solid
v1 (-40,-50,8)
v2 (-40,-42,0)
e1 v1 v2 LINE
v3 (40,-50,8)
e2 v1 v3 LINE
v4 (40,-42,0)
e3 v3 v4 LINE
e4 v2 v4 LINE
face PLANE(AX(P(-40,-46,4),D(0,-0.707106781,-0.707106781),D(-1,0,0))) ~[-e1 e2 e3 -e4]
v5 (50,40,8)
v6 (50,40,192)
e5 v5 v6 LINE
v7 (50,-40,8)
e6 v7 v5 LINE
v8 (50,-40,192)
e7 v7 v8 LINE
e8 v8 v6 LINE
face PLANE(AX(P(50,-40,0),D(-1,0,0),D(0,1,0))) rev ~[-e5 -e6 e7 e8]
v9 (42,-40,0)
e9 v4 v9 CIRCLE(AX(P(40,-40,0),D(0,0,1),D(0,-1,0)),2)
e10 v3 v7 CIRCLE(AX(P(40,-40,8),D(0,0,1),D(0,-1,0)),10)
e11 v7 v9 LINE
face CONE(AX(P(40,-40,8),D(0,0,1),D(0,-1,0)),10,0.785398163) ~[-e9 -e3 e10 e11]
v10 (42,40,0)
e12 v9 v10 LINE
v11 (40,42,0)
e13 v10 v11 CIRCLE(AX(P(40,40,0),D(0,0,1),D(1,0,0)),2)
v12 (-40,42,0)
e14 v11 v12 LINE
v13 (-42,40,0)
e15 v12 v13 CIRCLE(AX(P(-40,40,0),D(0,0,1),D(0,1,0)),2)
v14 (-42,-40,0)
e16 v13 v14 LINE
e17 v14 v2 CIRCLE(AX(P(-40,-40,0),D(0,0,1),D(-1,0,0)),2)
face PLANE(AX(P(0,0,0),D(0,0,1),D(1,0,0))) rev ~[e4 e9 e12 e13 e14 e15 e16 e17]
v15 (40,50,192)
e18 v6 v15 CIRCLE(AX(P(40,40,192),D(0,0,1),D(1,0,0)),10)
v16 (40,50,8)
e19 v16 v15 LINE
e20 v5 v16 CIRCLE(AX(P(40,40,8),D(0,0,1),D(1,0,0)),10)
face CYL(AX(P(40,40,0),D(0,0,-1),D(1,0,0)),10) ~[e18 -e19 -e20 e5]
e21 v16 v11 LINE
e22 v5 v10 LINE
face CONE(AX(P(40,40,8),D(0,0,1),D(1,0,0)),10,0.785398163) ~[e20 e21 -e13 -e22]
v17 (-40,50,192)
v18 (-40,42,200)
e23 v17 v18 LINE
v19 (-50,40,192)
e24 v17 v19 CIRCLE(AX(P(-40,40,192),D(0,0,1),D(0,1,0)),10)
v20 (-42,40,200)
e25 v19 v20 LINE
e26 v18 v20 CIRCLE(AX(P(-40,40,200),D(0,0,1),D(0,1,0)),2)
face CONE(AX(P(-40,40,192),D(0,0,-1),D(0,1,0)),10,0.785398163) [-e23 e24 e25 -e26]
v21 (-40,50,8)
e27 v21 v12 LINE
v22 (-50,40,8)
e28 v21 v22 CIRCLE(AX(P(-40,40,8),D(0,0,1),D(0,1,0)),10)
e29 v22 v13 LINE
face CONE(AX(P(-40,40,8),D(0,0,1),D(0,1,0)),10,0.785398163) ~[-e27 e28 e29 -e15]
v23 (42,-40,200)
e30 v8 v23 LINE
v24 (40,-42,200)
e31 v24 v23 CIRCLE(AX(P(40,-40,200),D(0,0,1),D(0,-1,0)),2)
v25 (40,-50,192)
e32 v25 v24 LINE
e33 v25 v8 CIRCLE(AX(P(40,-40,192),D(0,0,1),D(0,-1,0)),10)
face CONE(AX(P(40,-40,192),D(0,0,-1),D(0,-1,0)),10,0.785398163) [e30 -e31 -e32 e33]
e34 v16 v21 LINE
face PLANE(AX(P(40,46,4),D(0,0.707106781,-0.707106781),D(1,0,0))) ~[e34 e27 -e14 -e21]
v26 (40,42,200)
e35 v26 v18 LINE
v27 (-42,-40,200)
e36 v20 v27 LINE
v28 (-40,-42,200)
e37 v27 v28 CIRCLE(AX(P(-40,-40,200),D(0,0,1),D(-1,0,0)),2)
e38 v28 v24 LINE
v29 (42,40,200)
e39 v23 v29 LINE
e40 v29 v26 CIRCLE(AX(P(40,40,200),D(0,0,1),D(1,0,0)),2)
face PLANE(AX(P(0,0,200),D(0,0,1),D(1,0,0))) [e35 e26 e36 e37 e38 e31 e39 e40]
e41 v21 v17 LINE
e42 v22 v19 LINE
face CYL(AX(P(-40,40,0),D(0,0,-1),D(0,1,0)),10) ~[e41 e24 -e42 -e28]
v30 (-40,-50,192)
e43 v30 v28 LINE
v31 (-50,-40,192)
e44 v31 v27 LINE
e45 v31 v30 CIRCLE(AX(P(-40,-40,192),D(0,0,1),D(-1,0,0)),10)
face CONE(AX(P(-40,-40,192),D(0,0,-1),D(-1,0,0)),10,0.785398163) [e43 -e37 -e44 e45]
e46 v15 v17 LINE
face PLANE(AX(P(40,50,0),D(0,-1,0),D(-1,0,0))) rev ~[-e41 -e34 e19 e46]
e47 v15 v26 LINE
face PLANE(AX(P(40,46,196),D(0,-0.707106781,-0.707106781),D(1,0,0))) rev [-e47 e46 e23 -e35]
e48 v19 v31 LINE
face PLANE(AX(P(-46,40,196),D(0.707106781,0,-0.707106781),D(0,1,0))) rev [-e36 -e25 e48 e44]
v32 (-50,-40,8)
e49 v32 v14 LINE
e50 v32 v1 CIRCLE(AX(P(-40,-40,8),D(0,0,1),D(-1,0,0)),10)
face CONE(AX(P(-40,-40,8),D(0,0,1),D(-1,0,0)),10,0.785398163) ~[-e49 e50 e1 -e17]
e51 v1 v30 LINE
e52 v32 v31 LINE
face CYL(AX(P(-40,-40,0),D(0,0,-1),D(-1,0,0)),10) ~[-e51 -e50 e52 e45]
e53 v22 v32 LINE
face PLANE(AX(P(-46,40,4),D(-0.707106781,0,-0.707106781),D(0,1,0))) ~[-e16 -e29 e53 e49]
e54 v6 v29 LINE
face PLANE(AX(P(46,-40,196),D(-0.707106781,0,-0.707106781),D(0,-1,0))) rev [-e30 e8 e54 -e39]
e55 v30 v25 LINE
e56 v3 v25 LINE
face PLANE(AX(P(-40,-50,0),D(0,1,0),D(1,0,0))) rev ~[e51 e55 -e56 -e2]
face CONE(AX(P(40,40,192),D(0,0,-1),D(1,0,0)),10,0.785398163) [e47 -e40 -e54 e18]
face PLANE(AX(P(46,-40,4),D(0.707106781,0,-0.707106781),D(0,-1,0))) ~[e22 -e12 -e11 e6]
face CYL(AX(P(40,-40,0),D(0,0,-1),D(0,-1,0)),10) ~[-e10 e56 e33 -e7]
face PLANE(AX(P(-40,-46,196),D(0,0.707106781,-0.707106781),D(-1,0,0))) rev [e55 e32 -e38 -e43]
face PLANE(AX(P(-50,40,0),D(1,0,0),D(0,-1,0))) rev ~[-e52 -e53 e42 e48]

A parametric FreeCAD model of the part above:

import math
import FreeCAD as App
import Part
import Sketcher


def edges_at(feature, points):
    """Names of the edges that pass closest to the given points."""
    edges = feature.Shape.Edges
    near = lambda p: min(range(len(edges)), key=lambda i: edges[i].distToShape(Part.Vertex(*p))[0])
    return sorted({f"Edge{near(p) + 1}" for p in points})

doc = App.newDocument("Part")
body = doc.addObject("PartDesign::Body", "Body")

sketch1 = body.newObject("Sketcher::SketchObject", "Sketch")
sketch1.AttachmentSupport = (doc.getObject("XY_Plane"), [""])
sketch1.MapMode = "FlatFace"
sketch1.addGeometry(Part.ArcOfCircle(Part.Circle(App.Vector(-40, -40, 0), App.Vector(0, 0, 1), 10), math.radians(180), math.radians(270)), False)
sketch1.addGeometry(Part.LineSegment(App.Vector(-40, -50, 0), App.Vector(40, -50, 0)), False)
sketch1.addGeometry(Part.ArcOfCircle(Part.Circle(App.Vector(40, -40, 0), App.Vector(0, 0, 1), 10), math.radians(-90), math.radians(0)), False)
sketch1.addGeometry(Part.LineSegment(App.Vector(50, -40, 0), App.Vector(50, 40, 0)), False)
sketch1.addGeometry(Part.ArcOfCircle(Part.Circle(App.Vector(40, 40, 0), App.Vector(0, 0, 1), 10), math.radians(0), math.radians(90)), False)
sketch1.addGeometry(Part.LineSegment(App.Vector(40, 50, 0), App.Vector(-40, 50, 0)), False)
sketch1.addGeometry(Part.ArcOfCircle(Part.Circle(App.Vector(-40, 40, 0), App.Vector(0, 0, 1), 10), math.radians(90), math.radians(180)), False)
sketch1.addGeometry(Part.LineSegment(App.Vector(-50, 40, 0), App.Vector(-50, -40, 0)), False)
sketch1.addConstraint(Sketcher.Constraint("Tangent", 0, 2, 1, 1))
sketch1.addConstraint(Sketcher.Constraint("Tangent", 1, 2, 2, 1))
sketch1.addConstraint(Sketcher.Constraint("Tangent", 2, 2, 3, 1))
sketch1.addConstraint(Sketcher.Constraint("Tangent", 3, 2, 4, 1))
sketch1.addConstraint(Sketcher.Constraint("Tangent", 4, 2, 5, 1))
sketch1.addConstraint(Sketcher.Constraint("Tangent", 5, 2, 6, 1))
sketch1.addConstraint(Sketcher.Constraint("Tangent", 6, 2, 7, 1))
sketch1.addConstraint(Sketcher.Constraint("Tangent", 7, 2, 0, 1))
sketch1.addConstraint(Sketcher.Constraint("Horizontal", 1))
sketch1.addConstraint(Sketcher.Constraint("Vertical", 3))
sketch1.addConstraint(Sketcher.Constraint("Horizontal", 5))
sketch1.addConstraint(Sketcher.Constraint("Vertical", 7))
sketch1.addConstraint(Sketcher.Constraint("Equal", 0, 2))
sketch1.addConstraint(Sketcher.Constraint("Equal", 2, 4))
sketch1.addConstraint(Sketcher.Constraint("Equal", 4, 6))
sketch1.addConstraint(Sketcher.Constraint("Symmetric", 0, 3, 4, 3, -1, 1))
sketch1.addConstraint(Sketcher.Constraint("Equal", 5, 3))
sketch1.addConstraint(Sketcher.Constraint("Radius", 0, 10.0))
sketch1.addConstraint(Sketcher.Constraint("DistanceX", 1, 1, 1, 2, 80.0))
pad1 = body.newObject("PartDesign::Pad", "Pad")
pad1.Profile = sketch1
pad1.Length = 200
doc.recompute()

chamfer = body.newObject("PartDesign::Chamfer", "Chamfer")
chamfer.Base = (pad1, edges_at(pad1, [
    (50, 0, 200),
    (47.071, 47.071, 200),
    (0, 50, 200),
    (-47.071, 47.071, 200),
    (-50, 0, 200),
    (-47.071, -47.071, 200),
    (0, -50, 200),
    (47.071, -47.071, 200),
    (50, 0, 0),
    (47.071, 47.071, 0),
    (0, 50, 0),
    (-47.071, 47.071, 0),
    (-50, 0, 0),
    (-47.071, -47.071, 0),
    (0, -50, 0),
    (47.071, -47.071, 0),
]))
chamfer.Size = 8

doc.recompute()
